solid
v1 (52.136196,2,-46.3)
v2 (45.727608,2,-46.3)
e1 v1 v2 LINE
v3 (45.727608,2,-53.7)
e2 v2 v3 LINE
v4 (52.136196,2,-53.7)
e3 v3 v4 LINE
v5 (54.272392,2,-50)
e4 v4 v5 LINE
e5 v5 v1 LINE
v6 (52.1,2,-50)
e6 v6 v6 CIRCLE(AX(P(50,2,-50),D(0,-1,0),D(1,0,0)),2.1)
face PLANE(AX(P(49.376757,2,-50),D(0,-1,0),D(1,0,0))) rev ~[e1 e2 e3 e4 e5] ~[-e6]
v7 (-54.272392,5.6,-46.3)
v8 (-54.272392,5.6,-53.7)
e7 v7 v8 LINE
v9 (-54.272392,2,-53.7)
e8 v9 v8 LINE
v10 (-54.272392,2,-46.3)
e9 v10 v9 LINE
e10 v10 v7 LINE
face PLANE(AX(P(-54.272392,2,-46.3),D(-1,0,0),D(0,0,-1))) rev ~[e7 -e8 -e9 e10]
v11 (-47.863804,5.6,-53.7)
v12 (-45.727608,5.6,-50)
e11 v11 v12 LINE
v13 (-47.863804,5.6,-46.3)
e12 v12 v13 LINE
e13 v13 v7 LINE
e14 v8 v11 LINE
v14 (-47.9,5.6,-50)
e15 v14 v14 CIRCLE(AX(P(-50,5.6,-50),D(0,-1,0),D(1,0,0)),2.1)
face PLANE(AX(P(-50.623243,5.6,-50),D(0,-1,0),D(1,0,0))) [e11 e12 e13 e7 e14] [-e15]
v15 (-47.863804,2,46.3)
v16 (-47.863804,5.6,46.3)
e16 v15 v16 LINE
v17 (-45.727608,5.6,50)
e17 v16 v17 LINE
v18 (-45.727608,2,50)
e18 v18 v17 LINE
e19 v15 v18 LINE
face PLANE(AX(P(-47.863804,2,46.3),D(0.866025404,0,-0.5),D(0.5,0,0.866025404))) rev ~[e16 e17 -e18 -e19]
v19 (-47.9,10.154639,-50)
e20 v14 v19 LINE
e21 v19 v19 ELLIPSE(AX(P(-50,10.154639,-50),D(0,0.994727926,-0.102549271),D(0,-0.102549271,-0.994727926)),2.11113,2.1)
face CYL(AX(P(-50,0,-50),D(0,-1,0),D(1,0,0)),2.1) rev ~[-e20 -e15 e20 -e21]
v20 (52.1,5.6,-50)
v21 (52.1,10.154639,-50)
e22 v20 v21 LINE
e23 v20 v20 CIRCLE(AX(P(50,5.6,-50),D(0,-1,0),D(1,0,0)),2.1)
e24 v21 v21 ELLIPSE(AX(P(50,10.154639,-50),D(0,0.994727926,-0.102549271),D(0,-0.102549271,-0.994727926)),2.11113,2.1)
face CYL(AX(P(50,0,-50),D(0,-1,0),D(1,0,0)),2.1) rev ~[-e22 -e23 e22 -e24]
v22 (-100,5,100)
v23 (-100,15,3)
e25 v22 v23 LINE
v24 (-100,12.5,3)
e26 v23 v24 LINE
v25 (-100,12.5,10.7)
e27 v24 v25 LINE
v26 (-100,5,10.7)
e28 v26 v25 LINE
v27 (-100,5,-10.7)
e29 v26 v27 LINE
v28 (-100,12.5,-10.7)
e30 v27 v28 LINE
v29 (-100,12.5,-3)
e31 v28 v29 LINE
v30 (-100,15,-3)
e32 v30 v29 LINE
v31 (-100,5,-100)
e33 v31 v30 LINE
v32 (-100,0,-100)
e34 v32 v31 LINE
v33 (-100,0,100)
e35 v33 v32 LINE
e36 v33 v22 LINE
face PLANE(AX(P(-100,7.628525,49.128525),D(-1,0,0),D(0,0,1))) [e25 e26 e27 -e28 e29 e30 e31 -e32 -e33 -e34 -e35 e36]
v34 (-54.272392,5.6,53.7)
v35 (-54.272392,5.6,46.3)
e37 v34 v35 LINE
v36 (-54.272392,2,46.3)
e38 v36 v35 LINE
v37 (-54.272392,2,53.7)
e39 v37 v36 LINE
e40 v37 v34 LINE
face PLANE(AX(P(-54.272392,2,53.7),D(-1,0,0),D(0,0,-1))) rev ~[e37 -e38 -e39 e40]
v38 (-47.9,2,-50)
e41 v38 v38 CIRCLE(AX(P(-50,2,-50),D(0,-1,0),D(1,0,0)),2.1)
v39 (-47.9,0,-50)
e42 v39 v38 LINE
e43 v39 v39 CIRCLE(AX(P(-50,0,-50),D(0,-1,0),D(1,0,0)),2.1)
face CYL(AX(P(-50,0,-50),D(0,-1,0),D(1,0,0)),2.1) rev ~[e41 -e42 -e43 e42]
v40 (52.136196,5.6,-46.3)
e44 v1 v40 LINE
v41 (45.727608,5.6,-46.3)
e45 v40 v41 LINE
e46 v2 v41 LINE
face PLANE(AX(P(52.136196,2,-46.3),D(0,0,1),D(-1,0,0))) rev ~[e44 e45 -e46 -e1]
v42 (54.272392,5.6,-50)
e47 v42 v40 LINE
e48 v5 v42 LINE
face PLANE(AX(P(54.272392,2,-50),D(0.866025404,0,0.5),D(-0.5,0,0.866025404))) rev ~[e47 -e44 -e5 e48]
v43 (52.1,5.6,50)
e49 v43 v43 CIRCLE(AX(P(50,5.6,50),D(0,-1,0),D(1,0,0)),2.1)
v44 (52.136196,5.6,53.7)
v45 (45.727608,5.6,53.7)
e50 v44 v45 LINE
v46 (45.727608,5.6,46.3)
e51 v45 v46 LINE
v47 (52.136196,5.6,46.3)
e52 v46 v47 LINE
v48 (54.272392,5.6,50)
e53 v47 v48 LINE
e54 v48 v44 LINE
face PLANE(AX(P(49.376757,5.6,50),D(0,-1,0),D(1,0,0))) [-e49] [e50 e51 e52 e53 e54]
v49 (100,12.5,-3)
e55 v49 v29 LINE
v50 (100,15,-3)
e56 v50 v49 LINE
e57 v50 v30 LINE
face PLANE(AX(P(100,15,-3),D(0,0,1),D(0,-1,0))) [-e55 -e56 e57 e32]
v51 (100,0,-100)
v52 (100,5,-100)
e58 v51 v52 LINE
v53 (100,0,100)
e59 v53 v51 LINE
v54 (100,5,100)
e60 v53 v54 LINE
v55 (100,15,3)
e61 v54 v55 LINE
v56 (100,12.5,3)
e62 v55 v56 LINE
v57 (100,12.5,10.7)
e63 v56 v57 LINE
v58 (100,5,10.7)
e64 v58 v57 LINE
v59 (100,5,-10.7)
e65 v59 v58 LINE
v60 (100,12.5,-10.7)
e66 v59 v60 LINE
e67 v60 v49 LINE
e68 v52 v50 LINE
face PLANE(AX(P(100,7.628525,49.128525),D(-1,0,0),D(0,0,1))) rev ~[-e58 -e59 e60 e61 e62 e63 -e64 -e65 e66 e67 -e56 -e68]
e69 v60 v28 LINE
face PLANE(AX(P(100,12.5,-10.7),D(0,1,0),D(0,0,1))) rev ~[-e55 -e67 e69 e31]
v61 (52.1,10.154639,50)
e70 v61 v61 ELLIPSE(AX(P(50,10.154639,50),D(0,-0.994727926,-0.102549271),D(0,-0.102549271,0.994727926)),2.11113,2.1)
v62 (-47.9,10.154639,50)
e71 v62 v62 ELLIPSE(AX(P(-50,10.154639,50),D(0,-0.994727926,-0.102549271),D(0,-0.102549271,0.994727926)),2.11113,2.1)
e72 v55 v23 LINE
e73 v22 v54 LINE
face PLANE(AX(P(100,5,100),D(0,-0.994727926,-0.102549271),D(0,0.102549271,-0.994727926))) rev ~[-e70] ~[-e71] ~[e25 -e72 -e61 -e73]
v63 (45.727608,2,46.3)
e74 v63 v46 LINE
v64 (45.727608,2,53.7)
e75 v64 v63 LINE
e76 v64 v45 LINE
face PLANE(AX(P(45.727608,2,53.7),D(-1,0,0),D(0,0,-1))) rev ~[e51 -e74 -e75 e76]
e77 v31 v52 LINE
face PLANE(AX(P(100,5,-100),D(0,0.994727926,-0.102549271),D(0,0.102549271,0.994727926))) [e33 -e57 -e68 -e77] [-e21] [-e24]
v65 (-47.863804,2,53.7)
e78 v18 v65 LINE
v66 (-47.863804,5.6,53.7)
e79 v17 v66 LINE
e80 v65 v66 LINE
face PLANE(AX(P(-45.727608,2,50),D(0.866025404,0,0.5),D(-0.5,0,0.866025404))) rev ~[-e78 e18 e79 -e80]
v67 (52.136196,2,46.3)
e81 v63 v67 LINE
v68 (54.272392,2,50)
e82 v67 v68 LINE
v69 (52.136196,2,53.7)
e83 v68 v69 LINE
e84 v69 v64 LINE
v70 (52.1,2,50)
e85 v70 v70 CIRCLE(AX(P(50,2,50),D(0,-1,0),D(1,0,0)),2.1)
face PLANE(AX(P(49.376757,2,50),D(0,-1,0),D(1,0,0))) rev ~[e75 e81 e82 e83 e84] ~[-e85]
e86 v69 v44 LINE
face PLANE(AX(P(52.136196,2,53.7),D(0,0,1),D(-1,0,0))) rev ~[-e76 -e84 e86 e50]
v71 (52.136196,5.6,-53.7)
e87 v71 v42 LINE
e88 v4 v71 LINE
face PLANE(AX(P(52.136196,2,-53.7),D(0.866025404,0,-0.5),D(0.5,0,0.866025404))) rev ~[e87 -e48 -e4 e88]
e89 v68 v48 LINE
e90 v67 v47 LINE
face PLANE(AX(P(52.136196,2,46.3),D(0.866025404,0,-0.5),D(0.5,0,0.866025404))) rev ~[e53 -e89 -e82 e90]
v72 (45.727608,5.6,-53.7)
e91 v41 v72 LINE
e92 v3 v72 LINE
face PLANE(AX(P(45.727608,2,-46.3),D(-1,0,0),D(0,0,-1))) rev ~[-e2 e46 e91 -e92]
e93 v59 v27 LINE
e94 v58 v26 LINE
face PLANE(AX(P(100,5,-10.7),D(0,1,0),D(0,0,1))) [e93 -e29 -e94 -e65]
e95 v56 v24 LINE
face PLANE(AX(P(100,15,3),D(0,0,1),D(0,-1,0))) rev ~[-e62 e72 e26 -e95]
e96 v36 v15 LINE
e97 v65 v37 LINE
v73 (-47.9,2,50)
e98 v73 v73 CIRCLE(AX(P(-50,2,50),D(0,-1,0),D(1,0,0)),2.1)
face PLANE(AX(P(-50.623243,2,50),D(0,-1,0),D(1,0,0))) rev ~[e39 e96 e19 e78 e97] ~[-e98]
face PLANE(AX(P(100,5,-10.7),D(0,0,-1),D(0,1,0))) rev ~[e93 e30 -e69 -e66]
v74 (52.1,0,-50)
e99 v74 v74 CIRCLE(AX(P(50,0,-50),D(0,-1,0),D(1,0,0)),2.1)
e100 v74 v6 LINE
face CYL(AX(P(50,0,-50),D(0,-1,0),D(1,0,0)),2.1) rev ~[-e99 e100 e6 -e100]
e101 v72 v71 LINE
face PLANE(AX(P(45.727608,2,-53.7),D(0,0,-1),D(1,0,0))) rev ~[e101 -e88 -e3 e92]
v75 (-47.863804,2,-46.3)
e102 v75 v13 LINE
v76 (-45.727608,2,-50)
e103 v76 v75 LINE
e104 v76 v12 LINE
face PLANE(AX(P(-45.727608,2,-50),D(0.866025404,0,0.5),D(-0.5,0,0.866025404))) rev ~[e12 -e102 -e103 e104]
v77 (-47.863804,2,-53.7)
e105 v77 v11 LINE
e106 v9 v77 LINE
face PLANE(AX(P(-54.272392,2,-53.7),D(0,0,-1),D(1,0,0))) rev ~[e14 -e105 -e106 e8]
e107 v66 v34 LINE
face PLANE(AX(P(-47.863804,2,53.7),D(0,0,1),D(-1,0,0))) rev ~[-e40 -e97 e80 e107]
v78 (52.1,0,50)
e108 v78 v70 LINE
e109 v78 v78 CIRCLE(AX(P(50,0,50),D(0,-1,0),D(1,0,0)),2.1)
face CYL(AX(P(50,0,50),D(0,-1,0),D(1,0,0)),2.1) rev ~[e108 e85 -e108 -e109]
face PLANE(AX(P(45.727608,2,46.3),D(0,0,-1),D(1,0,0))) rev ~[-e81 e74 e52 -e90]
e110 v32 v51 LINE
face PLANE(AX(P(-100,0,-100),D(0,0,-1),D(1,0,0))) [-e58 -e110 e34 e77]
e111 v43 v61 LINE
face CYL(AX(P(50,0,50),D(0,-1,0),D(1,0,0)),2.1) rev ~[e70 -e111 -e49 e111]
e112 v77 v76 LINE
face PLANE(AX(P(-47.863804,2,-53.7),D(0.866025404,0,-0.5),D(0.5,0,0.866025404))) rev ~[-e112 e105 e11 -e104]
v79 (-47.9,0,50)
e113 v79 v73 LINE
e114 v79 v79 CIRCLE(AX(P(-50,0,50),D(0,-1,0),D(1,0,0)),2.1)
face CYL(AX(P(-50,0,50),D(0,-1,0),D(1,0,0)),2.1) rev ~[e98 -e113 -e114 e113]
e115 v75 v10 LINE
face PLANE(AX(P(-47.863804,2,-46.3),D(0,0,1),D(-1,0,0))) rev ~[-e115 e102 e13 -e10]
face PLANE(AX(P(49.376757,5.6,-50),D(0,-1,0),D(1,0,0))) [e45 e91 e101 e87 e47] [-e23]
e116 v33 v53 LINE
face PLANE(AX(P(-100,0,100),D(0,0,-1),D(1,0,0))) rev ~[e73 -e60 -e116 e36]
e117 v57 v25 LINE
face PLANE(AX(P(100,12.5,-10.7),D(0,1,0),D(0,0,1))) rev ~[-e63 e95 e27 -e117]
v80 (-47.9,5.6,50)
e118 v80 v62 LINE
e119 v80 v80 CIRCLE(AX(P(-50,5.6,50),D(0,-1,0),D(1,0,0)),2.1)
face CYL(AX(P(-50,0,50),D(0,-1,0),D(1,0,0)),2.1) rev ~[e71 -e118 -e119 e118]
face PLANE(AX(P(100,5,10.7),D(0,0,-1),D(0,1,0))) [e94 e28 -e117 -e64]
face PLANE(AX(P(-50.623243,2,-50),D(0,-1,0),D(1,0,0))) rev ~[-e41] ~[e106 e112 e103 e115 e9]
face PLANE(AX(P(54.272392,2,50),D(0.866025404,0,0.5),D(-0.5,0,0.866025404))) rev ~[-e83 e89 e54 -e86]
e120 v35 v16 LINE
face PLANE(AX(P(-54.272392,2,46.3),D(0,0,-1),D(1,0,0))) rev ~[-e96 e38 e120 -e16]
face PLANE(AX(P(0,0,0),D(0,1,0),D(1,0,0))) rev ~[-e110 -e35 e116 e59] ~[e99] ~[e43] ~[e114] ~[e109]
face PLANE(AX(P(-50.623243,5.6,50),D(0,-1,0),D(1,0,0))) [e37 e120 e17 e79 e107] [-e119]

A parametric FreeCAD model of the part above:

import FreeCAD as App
import Part
import Sketcher

V = App.Vector
Q = App.Units.Quantity


def add_polygon(sketch, points):
    """Adds a closed chain of lines whose ends are joined by coincident constraints."""
    first, n = sketch.GeometryCount, len(points)
    for a, b in zip(points, points[1:] + points[:1]):
        sketch.addGeometry(Part.LineSegment(App.Vector(*a, 0), App.Vector(*b, 0)), False)
    for i in range(n):
        sketch.addConstraint(Sketcher.Constraint("Coincident", first + i, 2, first + (i + 1) % n, 1))

doc = App.newDocument("Part")
body = doc.addObject("PartDesign::Body", "Body")

sketch1 = body.newObject("Sketcher::SketchObject", "Sketch")
sketch1.AttachmentSupport = (doc.getObject("XZ_Plane"), [""])
sketch1.MapMode = "FlatFace"
add_polygon(sketch1, [(-100, -100), (-100, 100), (100, 100), (100, -100)])
sketch1.addConstraint(Sketcher.Constraint("Vertical", 0))
sketch1.addConstraint(Sketcher.Constraint("Horizontal", 1))
sketch1.addConstraint(Sketcher.Constraint("Vertical", 2))
sketch1.addConstraint(Sketcher.Constraint("Horizontal", 3))
sketch1.addConstraint(Sketcher.Constraint("Symmetric", 0, 2, 2, 2, -1, 1))
sketch1.addConstraint(Sketcher.Constraint("Equal", 3, 0))
sketch1.addConstraint(Sketcher.Constraint("DistanceX", 1, 1, 1, 2, Q("200 mm")))
pad1 = body.newObject("PartDesign::Pad", "Pad")
pad1.Profile = sketch1
pad1.Length = 5
pad1.Reversed = True

sketch2 = body.newObject("Sketcher::SketchObject", "Sketch001")
sketch2.AttachmentSupport = (doc.getObject("YZ_Plane"), [""])
sketch2.MapMode = "FlatFace"
sketch2.AttachmentOffset = App.Placement(V(0, 0, 100), App.Rotation())
add_polygon(sketch2, [(15, 3), (5, 100), (5, 3)])
add_polygon(sketch2, [(5, -3), (5, -100), (15, -3)])
sketch2.addConstraint(Sketcher.Constraint("Vertical", 1))
sketch2.addConstraint(Sketcher.Constraint("Horizontal", 2))
sketch2.addConstraint(Sketcher.Constraint("Vertical", 3))
sketch2.addConstraint(Sketcher.Constraint("Horizontal", 5))
sketch2.addConstraint(Sketcher.Constraint("Symmetric", 0, 2, 3, 2, -1))
sketch2.addConstraint(Sketcher.Constraint("Symmetric", 2, 2, 4, 2, -1))
sketch2.addConstraint(Sketcher.Constraint("DistanceX", 2, 1, 2, 2, Q("10 mm")))
sketch2.addConstraint(Sketcher.Constraint("DistanceY", 1, 2, 1, 1, Q("97 mm")))
sketch2.addConstraint(Sketcher.Constraint("DistanceX", -1, 1, 0, 2, Q("5 mm")))
sketch2.addConstraint(Sketcher.Constraint("DistanceY", -1, 1, 0, 2, Q("100 mm")))
pad2 = body.newObject("PartDesign::Pad", "Pad001")
pad2.Profile = sketch2
pad2.Length = 200
pad2.Reversed = True

sketch3 = body.newObject("Sketcher::SketchObject", "Sketch002")
sketch3.AttachmentSupport = (doc.getObject("YZ_Plane"), [""])
sketch3.MapMode = "FlatFace"
sketch3.AttachmentOffset = App.Placement(V(0, 0, 100), App.Rotation())
add_polygon(sketch3, [(12, -11), (5, -11), (5, 11), (12, 11)])
sketch3.addConstraint(Sketcher.Constraint("Horizontal", 0))
sketch3.addConstraint(Sketcher.Constraint("Vertical", 1))
sketch3.addConstraint(Sketcher.Constraint("Horizontal", 2))
sketch3.addConstraint(Sketcher.Constraint("Vertical", 3))
sketch3.addConstraint(Sketcher.Constraint("DistanceX", 0, 2, 0, 1, Q("7.5 mm")))
sketch3.addConstraint(Sketcher.Constraint("DistanceY", 1, 1, 1, 2, Q("21.4 mm")))
sketch3.addConstraint(Sketcher.Constraint("DistanceX", -1, 1, 0, 2, Q("5 mm")))
sketch3.addConstraint(Sketcher.Constraint("DistanceY", 0, 2, -1, 1, Q("10.7 mm")))
pocket1 = body.newObject("PartDesign::Pocket", "Pocket")
pocket1.Profile = sketch3
pocket1.Length = 200

sketch4 = body.newObject("Sketcher::SketchObject", "Sketch003")
sketch4.AttachmentSupport = (doc.getObject("XZ_Plane"), [""])
sketch4.MapMode = "FlatFace"
sketch4.AttachmentOffset = App.Placement(V(0, 0, -2), App.Rotation())
add_polygon(sketch4, [(-47.9, 46.3), (-45.7, 50), (-47.9, 53.7), (-54.3, 53.7), (-54.3, 46.3)])
add_polygon(sketch4, [(52.1, 46.3), (54.3, 50), (52.1, 53.7), (45.7, 53.7), (45.7, 46.3)])
add_polygon(sketch4, [(52.1, -53.7), (54.3, -50), (52.1, -46.3), (45.7, -46.3), (45.7, -53.7)])
add_polygon(sketch4, [(-47.9, -53.7), (-45.7, -50), (-47.9, -46.3), (-54.3, -46.3), (-54.3, -53.7)])
sketch4.addConstraint(Sketcher.Constraint("Horizontal", 2))
sketch4.addConstraint(Sketcher.Constraint("Vertical", 3))
sketch4.addConstraint(Sketcher.Constraint("Horizontal", 4))
sketch4.addConstraint(Sketcher.Constraint("Horizontal", 7))
sketch4.addConstraint(Sketcher.Constraint("Vertical", 8))
sketch4.addConstraint(Sketcher.Constraint("Horizontal", 9))
sketch4.addConstraint(Sketcher.Constraint("Horizontal", 12))
sketch4.addConstraint(Sketcher.Constraint("Vertical", 13))
sketch4.addConstraint(Sketcher.Constraint("Horizontal", 14))
sketch4.addConstraint(Sketcher.Constraint("Horizontal", 17))
sketch4.addConstraint(Sketcher.Constraint("Vertical", 18))
sketch4.addConstraint(Sketcher.Constraint("Horizontal", 19))
sketch4.addConstraint(Sketcher.Constraint("Symmetric", 5, 2, 10, 2, -1))
sketch4.addConstraint(Sketcher.Constraint("Symmetric", 9, 2, 11, 2, -1))
sketch4.addConstraint(Sketcher.Constraint("Symmetric", 7, 2, 13, 2, -1))
sketch4.addConstraint(Sketcher.Constraint("Symmetric", 0, 2, 15, 2, -1))
sketch4.addConstraint(Sketcher.Constraint("Symmetric", 4, 2, 16, 2, -1))
sketch4.addConstraint(Sketcher.Constraint("Symmetric", 2, 2, 18, 2, -1))
sketch4.addConstraint(Sketcher.Constraint("Parallel", 0, 5))
sketch4.addConstraint(Sketcher.Constraint("Parallel", 1, 6))
sketch4.addConstraint(Sketcher.Constraint("Parallel", 5, 10))
sketch4.addConstraint(Sketcher.Constraint("Parallel", 6, 11))
sketch4.addConstraint(Sketcher.Constraint("Parallel", 10, 15))
sketch4.addConstraint(Sketcher.Constraint("Horizontal", 0, 2, 5, 2))
sketch4.addConstraint(Sketcher.Constraint("Horizontal", 2, 2, 6, 2))
sketch4.addConstraint(Sketcher.Constraint("Horizontal", 4, 2, 8, 2))
sketch4.addConstraint(Sketcher.Constraint("Vertical", 1, 2, 4, 2))
sketch4.addConstraint(Sketcher.Constraint("Equal", 4, 7))
sketch4.addConstraint(Sketcher.Constraint("Angle", 0, Q("60 deg")))
sketch4.addConstraint(Sketcher.Constraint("DistanceY", 3, 2, 3, 1, Q("7.4 mm")))
sketch4.addConstraint(Sketcher.Constraint("DistanceY", -1, 1, 0, 2, Q("50 mm")))
sketch4.addConstraint(Sketcher.Constraint("DistanceX", 0, 2, 5, 2, Q("100 mm")))
sketch4.addConstraint(Sketcher.Constraint("DistanceX", 2, 2, 2, 1, Q("6.408588 mm")))
sketch4.addConstraint(Sketcher.Constraint("DistanceX", 0, 2, -1, 1, Q("45.727608 mm")))
pocket2 = body.newObject("PartDesign::Pocket", "Pocket001")
pocket2.Profile = sketch4
pocket2.Length = 3.6

sketch5 = body.newObject("Sketcher::SketchObject", "Sketch004")
sketch5.AttachmentSupport = (doc.getObject("XZ_Plane"), [""])
sketch5.MapMode = "FlatFace"
sketch5.addGeometry(Part.Circle(V(-50, 50, 0), V(0, 0, 1), 2.1), False)
sketch5.addGeometry(Part.Circle(V(50, 50, 0), V(0, 0, 1), 2.1), False)
sketch5.addGeometry(Part.Circle(V(50, -50, 0), V(0, 0, 1), 2.1), False)
sketch5.addGeometry(Part.Circle(V(-50, -50, 0), V(0, 0, 1), 2.1), False)
sketch5.addConstraint(Sketcher.Constraint("Equal", 0, 1))
sketch5.addConstraint(Sketcher.Constraint("Equal", 1, 2))
sketch5.addConstraint(Sketcher.Constraint("Equal", 2, 3))
sketch5.addConstraint(Sketcher.Constraint("Symmetric", 0, 3, 2, 3, -1, 1))
sketch5.addConstraint(Sketcher.Constraint("Symmetric", 1, 3, 3, 3, -1, 1))
sketch5.addConstraint(Sketcher.Constraint("Symmetric", 0, 3, 1, 3, -2))
sketch5.addConstraint(Sketcher.Constraint("Diameter", 0, Q("4.2 mm")))
sketch5.addConstraint(Sketcher.Constraint("DistanceX", 0, 3, -1, 1, Q("50 mm")))
sketch5.addConstraint(Sketcher.Constraint("DistanceY", -1, 1, 0, 3, Q("50 mm")))
pocket3 = body.newObject("PartDesign::Pocket", "Pocket002")
pocket3.Profile = sketch5
pocket3.Type = "ThroughAll"

doc.recompute()
